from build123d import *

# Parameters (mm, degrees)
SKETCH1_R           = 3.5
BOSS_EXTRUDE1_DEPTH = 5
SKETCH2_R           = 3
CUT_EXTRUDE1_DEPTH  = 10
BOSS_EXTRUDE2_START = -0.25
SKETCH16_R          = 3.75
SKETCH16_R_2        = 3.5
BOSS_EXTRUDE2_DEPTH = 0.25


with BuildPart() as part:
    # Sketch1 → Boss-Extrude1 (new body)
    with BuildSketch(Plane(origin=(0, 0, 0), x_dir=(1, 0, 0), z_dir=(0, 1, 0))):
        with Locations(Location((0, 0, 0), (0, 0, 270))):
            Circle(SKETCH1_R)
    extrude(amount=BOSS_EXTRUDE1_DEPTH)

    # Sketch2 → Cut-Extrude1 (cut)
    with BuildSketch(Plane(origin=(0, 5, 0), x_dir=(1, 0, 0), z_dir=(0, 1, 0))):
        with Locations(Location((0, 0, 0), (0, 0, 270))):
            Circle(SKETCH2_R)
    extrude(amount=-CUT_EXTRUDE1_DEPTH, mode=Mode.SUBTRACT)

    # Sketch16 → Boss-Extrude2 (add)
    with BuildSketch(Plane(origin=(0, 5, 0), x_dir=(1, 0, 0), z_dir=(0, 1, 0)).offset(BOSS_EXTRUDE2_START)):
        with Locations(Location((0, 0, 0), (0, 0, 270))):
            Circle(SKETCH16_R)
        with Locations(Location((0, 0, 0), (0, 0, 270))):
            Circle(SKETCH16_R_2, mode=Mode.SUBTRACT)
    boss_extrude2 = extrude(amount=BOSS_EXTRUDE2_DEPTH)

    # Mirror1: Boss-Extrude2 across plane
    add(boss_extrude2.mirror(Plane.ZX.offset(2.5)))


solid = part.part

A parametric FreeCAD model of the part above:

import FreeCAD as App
import Part
import Sketcher

V = App.Vector
Q = App.Units.Quantity

doc = App.newDocument("Part")
body = doc.addObject("PartDesign::Body", "Body")

# Sketch on XZ plane
sketch1 = doc.addObject("Sketcher::SketchObject", "Sketch")
body.addObject(sketch1)
sketch1.AttachmentSupport = (doc.XZ_Plane, [""])
sketch1.MapMode = "FlatFace"
sketch1.addGeometry(Part.Circle(V(0, 0, 0), V(0, 0, 1), 3.5), False)
sketch1.addConstraint([
    Sketcher.Constraint("Coincident", 0, 3, -1, 1),
    Sketcher.Constraint("Diameter", 0, Q("7 mm")),
])
pad1 = doc.addObject("PartDesign::Pad", "Pad")
body.addObject(pad1)
pad1.Profile = sketch1
pad1.Length = 5
pad1.Reversed = True

# Sketch on XZ plane
sketch2 = doc.addObject("Sketcher::SketchObject", "Sketch001")
body.addObject(sketch2)
sketch2.AttachmentSupport = (doc.XZ_Plane, [""])
sketch2.MapMode = "FlatFace"
sketch2.AttachmentOffset = App.Placement(V(0, 0, -5), App.Rotation())
sketch2.addGeometry(Part.Circle(V(0, 0, 0), V(0, 0, 1), 3), False)
sketch2.addConstraint([
    Sketcher.Constraint("Coincident", 0, 3, -1, 1),
    Sketcher.Constraint("Diameter", 0, Q("6 mm")),
])
pocket1 = doc.addObject("PartDesign::Pocket", "Pocket")
body.addObject(pocket1)
pocket1.Profile = sketch2
pocket1.Length = 10
pocket1.Reversed = True

# Sketch on XZ plane
sketch3 = doc.addObject("Sketcher::SketchObject", "Sketch002")
body.addObject(sketch3)
sketch3.AttachmentSupport = (doc.XZ_Plane, [""])
sketch3.MapMode = "FlatFace"
sketch3.AttachmentOffset = App.Placement(V(0, 0, -4.75), App.Rotation())
sketch3.addGeometry([
    Part.Circle(V(0, 0, 0), V(0, 0, 1), 3.75),
    Part.Circle(V(0, 0, 0), V(0, 0, 1), 3.5),
], False)
sketch3.addConstraint([
    Sketcher.Constraint("Coincident", 0, 3, -1, 1),
    Sketcher.Constraint("Coincident", 1, 3, -1, 1),
    Sketcher.Constraint("Diameter", 1, Q("7 mm")),
    Sketcher.Constraint("Diameter", 0, Q("7.5 mm")),
])
pad2 = doc.addObject("PartDesign::Pad", "Pad001")
body.addObject(pad2)
pad2.Profile = sketch3
pad2.Length = 0.25
pad2.Reversed = True
doc.recompute()

datumplane = doc.addObject("PartDesign::Plane", "DatumPlane")
body.addObject(datumplane)
datumplane.AttachmentSupport = (doc.XZ_Plane, [""])
datumplane.MapMode = "FlatFace"
datumplane.AttachmentOffset = App.Placement(V(0, 0, -2.5), App.Rotation())
mirrored = doc.addObject("PartDesign::Mirrored", "Mirrored")
body.addObject(mirrored)
mirrored.Originals = [pad2]
mirrored.MirrorPlane = (datumplane, [""])
body.Tip = mirrored

doc.recompute()
